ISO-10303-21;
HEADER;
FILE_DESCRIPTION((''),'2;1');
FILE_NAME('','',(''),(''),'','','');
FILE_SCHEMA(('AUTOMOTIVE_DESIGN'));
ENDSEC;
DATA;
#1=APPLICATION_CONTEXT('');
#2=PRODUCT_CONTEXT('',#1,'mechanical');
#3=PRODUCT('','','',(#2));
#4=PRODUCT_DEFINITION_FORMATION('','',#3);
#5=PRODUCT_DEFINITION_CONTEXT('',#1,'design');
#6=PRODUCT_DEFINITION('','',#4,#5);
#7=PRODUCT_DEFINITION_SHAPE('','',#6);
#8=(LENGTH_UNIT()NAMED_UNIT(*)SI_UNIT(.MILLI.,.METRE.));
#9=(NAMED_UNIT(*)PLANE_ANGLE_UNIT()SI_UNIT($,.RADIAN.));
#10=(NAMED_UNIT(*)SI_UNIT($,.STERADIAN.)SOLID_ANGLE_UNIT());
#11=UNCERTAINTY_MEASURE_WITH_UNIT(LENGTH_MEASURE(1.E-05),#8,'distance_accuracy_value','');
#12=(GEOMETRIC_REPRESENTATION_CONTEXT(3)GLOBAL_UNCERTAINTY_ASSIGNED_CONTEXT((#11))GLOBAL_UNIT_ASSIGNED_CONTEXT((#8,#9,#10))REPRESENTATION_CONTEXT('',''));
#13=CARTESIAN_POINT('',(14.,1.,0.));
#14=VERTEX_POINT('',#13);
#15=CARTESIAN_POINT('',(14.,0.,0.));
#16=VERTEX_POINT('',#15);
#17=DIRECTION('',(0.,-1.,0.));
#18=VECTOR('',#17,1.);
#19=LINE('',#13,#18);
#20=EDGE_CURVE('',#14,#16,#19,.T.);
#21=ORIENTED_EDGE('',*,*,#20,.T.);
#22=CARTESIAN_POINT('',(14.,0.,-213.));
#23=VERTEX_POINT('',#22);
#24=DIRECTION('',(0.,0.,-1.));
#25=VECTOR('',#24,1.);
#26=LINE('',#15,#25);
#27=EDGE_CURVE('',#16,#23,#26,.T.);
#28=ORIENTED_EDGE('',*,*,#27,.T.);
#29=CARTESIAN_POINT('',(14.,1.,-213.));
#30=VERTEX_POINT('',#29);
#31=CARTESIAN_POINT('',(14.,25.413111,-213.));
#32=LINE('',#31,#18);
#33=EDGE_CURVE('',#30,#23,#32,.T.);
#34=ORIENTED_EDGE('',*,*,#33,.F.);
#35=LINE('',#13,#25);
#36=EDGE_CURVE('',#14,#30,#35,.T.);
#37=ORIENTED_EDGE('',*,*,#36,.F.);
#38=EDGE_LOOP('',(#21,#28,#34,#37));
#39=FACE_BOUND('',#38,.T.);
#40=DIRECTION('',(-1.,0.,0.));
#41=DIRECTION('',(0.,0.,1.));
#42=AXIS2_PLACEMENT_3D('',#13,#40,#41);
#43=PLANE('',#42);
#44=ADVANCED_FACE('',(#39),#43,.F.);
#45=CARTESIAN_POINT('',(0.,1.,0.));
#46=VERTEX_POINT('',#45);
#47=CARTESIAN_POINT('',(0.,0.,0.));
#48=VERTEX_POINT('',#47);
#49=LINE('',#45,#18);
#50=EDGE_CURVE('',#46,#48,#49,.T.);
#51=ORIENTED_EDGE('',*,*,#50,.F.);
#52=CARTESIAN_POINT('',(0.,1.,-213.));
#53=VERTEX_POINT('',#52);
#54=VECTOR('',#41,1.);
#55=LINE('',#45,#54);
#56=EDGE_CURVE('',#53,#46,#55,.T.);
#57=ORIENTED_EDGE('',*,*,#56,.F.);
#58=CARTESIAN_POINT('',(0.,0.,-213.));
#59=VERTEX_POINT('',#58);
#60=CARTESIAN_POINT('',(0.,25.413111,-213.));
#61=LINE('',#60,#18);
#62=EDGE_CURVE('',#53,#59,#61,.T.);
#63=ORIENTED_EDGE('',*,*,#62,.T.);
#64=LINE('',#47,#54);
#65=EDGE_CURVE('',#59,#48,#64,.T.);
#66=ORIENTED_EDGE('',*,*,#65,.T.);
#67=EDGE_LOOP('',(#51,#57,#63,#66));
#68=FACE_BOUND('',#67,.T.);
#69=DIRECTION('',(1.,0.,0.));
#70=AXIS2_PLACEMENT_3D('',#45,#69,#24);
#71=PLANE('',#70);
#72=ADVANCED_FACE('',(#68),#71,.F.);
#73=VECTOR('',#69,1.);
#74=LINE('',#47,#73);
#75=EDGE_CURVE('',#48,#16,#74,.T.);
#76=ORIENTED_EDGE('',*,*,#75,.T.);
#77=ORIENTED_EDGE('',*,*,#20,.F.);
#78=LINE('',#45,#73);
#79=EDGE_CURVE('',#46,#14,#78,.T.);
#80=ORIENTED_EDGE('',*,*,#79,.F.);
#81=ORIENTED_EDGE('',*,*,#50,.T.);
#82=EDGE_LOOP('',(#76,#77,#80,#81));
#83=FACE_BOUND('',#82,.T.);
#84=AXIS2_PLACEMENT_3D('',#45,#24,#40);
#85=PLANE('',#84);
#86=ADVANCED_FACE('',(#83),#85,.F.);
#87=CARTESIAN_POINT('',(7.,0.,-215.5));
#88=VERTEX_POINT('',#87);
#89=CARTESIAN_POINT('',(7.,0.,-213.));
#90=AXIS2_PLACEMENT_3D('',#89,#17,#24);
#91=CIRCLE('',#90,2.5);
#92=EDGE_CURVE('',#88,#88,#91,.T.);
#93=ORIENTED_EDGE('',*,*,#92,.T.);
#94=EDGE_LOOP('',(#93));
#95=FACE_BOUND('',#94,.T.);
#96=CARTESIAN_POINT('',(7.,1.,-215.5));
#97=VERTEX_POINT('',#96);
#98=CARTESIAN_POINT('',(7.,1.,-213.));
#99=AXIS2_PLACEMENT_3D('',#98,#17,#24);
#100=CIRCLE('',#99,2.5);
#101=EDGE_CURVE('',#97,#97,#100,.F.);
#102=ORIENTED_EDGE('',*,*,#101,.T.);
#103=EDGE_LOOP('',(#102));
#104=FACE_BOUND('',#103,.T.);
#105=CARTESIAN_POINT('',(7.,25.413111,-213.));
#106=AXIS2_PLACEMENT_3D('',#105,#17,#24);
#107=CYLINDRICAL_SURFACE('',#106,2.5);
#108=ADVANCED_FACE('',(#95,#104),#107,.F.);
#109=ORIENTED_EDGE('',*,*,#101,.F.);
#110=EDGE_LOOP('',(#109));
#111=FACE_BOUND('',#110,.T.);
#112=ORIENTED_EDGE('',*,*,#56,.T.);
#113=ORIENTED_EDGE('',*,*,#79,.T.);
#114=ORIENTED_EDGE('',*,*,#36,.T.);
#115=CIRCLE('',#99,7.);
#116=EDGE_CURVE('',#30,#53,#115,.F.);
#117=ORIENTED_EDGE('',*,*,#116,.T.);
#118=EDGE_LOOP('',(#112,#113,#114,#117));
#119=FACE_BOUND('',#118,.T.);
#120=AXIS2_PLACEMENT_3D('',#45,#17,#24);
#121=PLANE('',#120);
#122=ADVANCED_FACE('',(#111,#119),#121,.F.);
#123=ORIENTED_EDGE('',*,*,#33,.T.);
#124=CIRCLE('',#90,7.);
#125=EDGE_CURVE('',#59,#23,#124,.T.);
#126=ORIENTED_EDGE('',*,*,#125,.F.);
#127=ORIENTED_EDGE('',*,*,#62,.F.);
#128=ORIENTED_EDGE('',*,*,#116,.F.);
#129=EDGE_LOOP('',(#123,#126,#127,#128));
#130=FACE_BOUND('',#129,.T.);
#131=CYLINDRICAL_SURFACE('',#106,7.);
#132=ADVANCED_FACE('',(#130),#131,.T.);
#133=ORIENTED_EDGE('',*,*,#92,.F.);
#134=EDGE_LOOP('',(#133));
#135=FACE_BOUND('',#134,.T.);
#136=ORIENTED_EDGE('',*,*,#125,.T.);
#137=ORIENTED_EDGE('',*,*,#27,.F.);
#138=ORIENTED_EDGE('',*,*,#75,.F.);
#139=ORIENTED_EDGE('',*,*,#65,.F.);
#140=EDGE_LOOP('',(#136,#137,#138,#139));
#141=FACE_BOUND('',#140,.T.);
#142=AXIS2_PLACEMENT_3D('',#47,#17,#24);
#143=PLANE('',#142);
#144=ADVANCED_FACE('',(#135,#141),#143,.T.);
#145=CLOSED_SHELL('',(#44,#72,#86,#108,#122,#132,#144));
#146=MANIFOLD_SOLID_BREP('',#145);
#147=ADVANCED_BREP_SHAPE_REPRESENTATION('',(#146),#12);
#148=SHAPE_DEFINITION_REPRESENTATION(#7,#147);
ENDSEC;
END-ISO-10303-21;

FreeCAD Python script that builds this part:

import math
import FreeCAD as App
import Part
import Sketcher

V = App.Vector

doc = App.newDocument("Part")
body = doc.addObject("PartDesign::Body", "Body")

# Sketch on XZ plane
sketch1 = body.newObject("Sketcher::SketchObject", "Sketch")
sketch1.AttachmentSupport = (doc.getObject("XZ_Plane"), [""])
sketch1.MapMode = "FlatFace"
sketch1.addGeometry([
    Part.LineSegment(V(0, -200, 0), V(0, 0, 0)),
    Part.LineSegment(V(0, 0, 0), V(14, 0, 0)),
    Part.LineSegment(V(14, 0, 0), V(14, -200, 0)),
    Part.LineSegment(V(14, -200, 0), V(0, -200, 0)),
], False)
sketch1.addConstraint([
    Sketcher.Constraint("Coincident", 0, 2, 1, 1),
    Sketcher.Constraint("Coincident", 1, 2, 2, 1),
    Sketcher.Constraint("Coincident", 2, 2, 3, 1),
    Sketcher.Constraint("Coincident", 3, 2, 0, 1),
    Sketcher.Constraint("Vertical", 0),
    Sketcher.Constraint("Horizontal", 1),
    Sketcher.Constraint("Vertical", 2),
    Sketcher.Constraint("Horizontal", 3),
    Sketcher.Constraint("Coincident", 0, 2, -1, 1),
    Sketcher.Constraint("DistanceX", 1, 1, 1, 2, 14.0),
    Sketcher.Constraint("DistanceY", 0, 1, 0, 2, 200.0),
])
pad1 = body.newObject("PartDesign::Pad", "Pad")
pad1.Profile = sketch1
pad1.Length = 1
pad1.Reversed = True

# Sketch on XZ plane
sketch2 = body.newObject("Sketcher::SketchObject", "Sketch001")
sketch2.AttachmentSupport = (doc.getObject("XZ_Plane"), [""])
sketch2.MapMode = "FlatFace"
sketch2.addGeometry([
    Part.LineSegment(V(14, -200, 0), V(0, -200, 0)),  # 0
    Part.LineSegment(V(0, -200, 0), V(0, -213, 0)),  # 1
    Part.ArcOfCircle(Part.Circle(V(7, -213, 0), V(0, 0, 1), 7), math.radians(180), math.radians(360)),  # 2
    Part.LineSegment(V(14, -213, 0), V(14, -200, 0)),  # 3
    Part.Circle(V(7, -213, 0), V(0, 0, 1), 2.5),  # 4
], False)
sketch2.addConstraint([
    Sketcher.Constraint("Coincident", 0, 2, 1, 1),
    Sketcher.Constraint("Tangent", 1, 2, 2, 1),
    Sketcher.Constraint("Tangent", 2, 2, 3, 1),
    Sketcher.Constraint("Coincident", 3, 2, 0, 1),
    Sketcher.Constraint("Horizontal", 0),
    Sketcher.Constraint("Vertical", 1),
    Sketcher.Constraint("Vertical", 3),
    Sketcher.Constraint("Coincident", 4, 3, 2, 3),
    Sketcher.Constraint("PointOnObject", 0, 2, -2),
    Sketcher.Constraint("Diameter", 4, 5.0),
    Sketcher.Constraint("Radius", 2, 7.0),
    Sketcher.Constraint("DistanceY", 1, 2, 1, 1, 13.0),
    Sketcher.Constraint("DistanceY", 2, 3, -1, 1, 213.0),
])
pad2 = body.newObject("PartDesign::Pad", "Pad001")
pad2.Profile = sketch2
pad2.Length = 1
pad2.Reversed = True

doc.recompute()
